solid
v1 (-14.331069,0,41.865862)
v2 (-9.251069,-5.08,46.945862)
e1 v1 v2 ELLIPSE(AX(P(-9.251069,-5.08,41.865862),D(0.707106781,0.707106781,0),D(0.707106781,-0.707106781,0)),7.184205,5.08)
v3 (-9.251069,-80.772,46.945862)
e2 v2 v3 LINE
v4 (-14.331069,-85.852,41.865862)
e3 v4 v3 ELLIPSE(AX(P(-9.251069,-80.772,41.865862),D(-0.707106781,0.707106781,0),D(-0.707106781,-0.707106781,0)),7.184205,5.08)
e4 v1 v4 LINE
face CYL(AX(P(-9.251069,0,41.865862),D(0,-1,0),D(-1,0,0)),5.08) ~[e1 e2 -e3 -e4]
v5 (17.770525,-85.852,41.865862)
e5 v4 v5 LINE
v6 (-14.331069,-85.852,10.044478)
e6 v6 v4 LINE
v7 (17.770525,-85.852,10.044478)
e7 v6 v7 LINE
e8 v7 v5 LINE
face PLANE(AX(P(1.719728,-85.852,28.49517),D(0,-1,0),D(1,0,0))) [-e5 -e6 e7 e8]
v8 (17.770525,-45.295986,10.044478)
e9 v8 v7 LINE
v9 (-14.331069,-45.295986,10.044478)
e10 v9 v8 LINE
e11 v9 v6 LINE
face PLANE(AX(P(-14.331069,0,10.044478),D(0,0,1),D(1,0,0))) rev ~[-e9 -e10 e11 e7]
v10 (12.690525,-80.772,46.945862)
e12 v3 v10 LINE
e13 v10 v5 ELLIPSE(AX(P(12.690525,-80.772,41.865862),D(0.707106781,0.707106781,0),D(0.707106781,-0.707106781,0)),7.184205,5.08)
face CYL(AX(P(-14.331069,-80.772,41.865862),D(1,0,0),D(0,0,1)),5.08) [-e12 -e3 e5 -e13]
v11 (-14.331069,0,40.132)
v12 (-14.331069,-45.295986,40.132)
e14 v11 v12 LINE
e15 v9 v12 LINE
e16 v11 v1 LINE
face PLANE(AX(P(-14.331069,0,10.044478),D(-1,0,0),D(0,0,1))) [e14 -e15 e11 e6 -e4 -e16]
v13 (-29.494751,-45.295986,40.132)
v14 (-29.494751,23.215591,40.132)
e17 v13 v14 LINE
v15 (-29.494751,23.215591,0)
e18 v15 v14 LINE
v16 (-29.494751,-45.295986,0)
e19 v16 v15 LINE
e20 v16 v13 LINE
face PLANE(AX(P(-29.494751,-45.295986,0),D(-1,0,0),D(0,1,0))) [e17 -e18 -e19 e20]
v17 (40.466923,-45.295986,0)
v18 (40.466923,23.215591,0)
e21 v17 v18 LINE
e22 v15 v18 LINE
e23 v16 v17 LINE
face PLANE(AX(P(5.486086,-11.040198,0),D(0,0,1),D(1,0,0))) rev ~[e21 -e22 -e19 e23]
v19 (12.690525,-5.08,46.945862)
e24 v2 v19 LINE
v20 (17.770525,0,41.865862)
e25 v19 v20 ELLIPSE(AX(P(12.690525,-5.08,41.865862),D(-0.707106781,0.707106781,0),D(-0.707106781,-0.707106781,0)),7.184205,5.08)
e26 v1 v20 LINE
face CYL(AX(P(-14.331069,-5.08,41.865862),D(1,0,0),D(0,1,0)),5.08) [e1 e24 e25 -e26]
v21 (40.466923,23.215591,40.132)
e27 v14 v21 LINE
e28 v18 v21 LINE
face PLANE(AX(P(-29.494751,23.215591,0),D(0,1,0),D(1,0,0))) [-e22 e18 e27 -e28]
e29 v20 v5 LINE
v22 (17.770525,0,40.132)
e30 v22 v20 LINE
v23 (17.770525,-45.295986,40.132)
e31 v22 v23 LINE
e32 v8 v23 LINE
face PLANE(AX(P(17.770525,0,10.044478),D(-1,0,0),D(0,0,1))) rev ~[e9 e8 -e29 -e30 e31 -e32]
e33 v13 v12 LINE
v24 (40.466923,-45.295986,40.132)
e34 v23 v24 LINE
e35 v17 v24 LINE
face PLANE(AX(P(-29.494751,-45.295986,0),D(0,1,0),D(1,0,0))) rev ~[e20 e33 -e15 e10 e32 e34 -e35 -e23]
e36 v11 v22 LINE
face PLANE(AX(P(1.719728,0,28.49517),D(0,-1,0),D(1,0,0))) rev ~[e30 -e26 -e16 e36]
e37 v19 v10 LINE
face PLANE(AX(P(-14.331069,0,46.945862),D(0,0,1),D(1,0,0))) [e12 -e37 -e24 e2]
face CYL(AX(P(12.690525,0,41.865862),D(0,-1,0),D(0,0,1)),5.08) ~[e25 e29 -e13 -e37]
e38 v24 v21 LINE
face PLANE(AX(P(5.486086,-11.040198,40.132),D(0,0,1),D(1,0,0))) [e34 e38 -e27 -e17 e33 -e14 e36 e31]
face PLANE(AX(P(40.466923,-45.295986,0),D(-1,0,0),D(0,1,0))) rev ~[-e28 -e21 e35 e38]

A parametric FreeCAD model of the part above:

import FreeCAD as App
import Part
import Sketcher
from FreeCAD import Vector
Q = App.Units.Quantity


def edges_at(feature, points):
    """Names of the edges that pass closest to the given points."""
    edges = feature.Shape.Edges
    near = lambda p: min(range(len(edges)), key=lambda i: edges[i].distToShape(Part.Vertex(*p))[0])
    return sorted({f"Edge{near(p) + 1}" for p in points})

doc = App.newDocument("Part")
params = doc.addObject("Spreadsheet::Sheet", "Params")
for row, (alias, value) in enumerate([
    ("pad1_length", "1.58 in"),
    ("pad2_length", "3.38 in"),
    ("fillet_radius", "0.2 in"),
], start=1):
    params.set(f"A{row}", alias)
    params.set(f"B{row}", "=" + value)
    params.setAlias(f"B{row}", alias)

body = doc.addObject("PartDesign::Body", "Body")

# Sketch on XY plane
sketch1 = body.newObject("Sketcher::SketchObject", "Sketch")
sketch1.AttachmentSupport = (doc.getObject("XY_Plane"), [""])
sketch1.MapMode = "FlatFace"
sketch1.addGeometry(Part.LineSegment(Vector(-29, 23, 0), Vector(-29, -45, 0)), False)
sketch1.addGeometry(Part.LineSegment(Vector(-29, -45, 0), Vector(40, -45, 0)), False)
sketch1.addGeometry(Part.LineSegment(Vector(40, -45, 0), Vector(40, 23, 0)), False)
sketch1.addGeometry(Part.LineSegment(Vector(40, 23, 0), Vector(-29, 23, 0)), False)
sketch1.addConstraint(Sketcher.Constraint("Coincident", 0, 2, 1, 1))
sketch1.addConstraint(Sketcher.Constraint("Coincident", 1, 2, 2, 1))
sketch1.addConstraint(Sketcher.Constraint("Coincident", 2, 2, 3, 1))
sketch1.addConstraint(Sketcher.Constraint("Coincident", 3, 2, 0, 1))
sketch1.addConstraint(Sketcher.Constraint("Vertical", 0))
sketch1.addConstraint(Sketcher.Constraint("Horizontal", 1))
sketch1.addConstraint(Sketcher.Constraint("Vertical", 2))
sketch1.addConstraint(Sketcher.Constraint("Horizontal", 3))
sketch1.addConstraint(Sketcher.Constraint("DistanceX", 1, 1, 1, 2, Q("69.961674 mm")))
sketch1.addConstraint(Sketcher.Constraint("DistanceY", 0, 2, 0, 1, Q("68.511577 mm")))
sketch1.addConstraint(Sketcher.Constraint("DistanceX", 0, 2, -1, 1, Q("29.494751 mm")))
sketch1.addConstraint(Sketcher.Constraint("DistanceY", -1, 1, 2, 2, Q("23.215591 mm")))
pad1 = body.newObject("PartDesign::Pad", "Pad")
pad1.Profile = sketch1
pad1.setExpression("Length", "Params.pad1_length")

# Sketch on XZ plane
sketch2 = body.newObject("Sketcher::SketchObject", "Sketch001")
sketch2.AttachmentSupport = (doc.getObject("XZ_Plane"), [""])
sketch2.MapMode = "FlatFace"
sketch2.addGeometry(Part.LineSegment(Vector(-14, 47, 0), Vector(-14, 10, 0)), False)
sketch2.addGeometry(Part.LineSegment(Vector(-14, 10, 0), Vector(18, 10, 0)), False)
sketch2.addGeometry(Part.LineSegment(Vector(18, 10, 0), Vector(18, 47, 0)), False)
sketch2.addGeometry(Part.LineSegment(Vector(18, 47, 0), Vector(-14, 47, 0)), False)
sketch2.addConstraint(Sketcher.Constraint("Coincident", 0, 2, 1, 1))
sketch2.addConstraint(Sketcher.Constraint("Coincident", 1, 2, 2, 1))
sketch2.addConstraint(Sketcher.Constraint("Coincident", 2, 2, 3, 1))
sketch2.addConstraint(Sketcher.Constraint("Coincident", 3, 2, 0, 1))
sketch2.addConstraint(Sketcher.Constraint("Vertical", 0))
sketch2.addConstraint(Sketcher.Constraint("Horizontal", 1))
sketch2.addConstraint(Sketcher.Constraint("Vertical", 2))
sketch2.addConstraint(Sketcher.Constraint("Horizontal", 3))
sketch2.addConstraint(Sketcher.Constraint("DistanceX", 1, 1, 1, 2, Q("32.101594 mm")))
sketch2.addConstraint(Sketcher.Constraint("DistanceY", 0, 2, 0, 1, Q("36.901384 mm")))
sketch2.addConstraint(Sketcher.Constraint("DistanceX", 0, 2, -1, 1, Q("14.331069 mm")))
sketch2.addConstraint(Sketcher.Constraint("DistanceY", -1, 1, 2, 2, Q("46.945862 mm")))
pad2 = body.newObject("PartDesign::Pad", "Pad001")
pad2.Profile = sketch2
pad2.setExpression("Length", "Params.pad2_length")
doc.recompute()

fillet = body.newObject("PartDesign::Fillet", "Fillet")
fillet.Base = (pad2, edges_at(pad2, [
    (17.771, -42.926, 46.946),
    (-14.331, -42.926, 46.946),
    (1.72, 0, 46.946),
    (1.72, -85.852, 46.946),
]))
fillet.setExpression("Radius", "Params.fillet_radius")

doc.recompute()
